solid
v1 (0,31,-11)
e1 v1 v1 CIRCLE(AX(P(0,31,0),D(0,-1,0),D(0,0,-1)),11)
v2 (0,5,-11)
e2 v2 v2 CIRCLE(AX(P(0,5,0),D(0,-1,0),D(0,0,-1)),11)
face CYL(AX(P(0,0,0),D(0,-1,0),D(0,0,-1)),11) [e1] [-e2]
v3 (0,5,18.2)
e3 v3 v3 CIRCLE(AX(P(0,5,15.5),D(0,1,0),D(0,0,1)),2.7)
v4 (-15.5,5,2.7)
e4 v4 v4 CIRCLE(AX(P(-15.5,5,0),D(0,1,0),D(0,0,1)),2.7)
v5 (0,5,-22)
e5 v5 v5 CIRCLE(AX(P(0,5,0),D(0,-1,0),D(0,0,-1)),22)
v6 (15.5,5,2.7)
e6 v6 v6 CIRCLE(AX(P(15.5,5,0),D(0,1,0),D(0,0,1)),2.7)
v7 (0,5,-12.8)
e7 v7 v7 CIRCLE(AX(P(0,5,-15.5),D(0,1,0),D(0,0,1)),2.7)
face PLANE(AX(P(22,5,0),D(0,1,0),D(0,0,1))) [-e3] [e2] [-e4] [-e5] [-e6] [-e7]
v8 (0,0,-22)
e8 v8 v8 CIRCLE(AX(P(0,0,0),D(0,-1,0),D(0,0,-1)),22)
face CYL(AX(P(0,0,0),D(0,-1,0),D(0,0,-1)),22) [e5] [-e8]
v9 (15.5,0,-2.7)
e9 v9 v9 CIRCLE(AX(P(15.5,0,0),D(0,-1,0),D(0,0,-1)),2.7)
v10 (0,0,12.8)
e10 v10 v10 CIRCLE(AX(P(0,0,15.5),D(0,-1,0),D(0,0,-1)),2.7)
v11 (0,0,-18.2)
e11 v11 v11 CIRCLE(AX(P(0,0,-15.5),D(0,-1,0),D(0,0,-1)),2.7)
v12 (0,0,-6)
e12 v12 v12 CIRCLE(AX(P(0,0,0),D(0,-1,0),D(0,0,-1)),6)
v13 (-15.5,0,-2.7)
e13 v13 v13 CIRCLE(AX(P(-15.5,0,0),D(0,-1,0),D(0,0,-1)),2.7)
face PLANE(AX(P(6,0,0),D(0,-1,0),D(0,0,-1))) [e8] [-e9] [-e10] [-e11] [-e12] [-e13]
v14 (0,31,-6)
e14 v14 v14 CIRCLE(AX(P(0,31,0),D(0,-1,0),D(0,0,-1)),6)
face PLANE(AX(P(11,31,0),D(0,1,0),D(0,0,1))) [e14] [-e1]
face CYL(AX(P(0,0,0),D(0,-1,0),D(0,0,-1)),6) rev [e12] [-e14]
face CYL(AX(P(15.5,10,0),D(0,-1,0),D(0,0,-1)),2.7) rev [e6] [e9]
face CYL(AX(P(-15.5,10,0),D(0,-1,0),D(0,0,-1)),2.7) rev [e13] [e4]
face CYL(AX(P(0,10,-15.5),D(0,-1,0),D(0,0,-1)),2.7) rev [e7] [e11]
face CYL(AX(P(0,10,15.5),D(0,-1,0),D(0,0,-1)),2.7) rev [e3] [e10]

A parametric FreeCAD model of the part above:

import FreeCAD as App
import Part
import Sketcher

doc = App.newDocument("Part")
params = doc.addObject("Spreadsheet::Sheet", "Params")
for row, (alias, value) in enumerate([
    ("sketch1_width", "16 mm"),
    ("sketch1_width2", "11 mm"),
    ("sketch1_height", "26 mm"),
    ("revolution_angle", "360 deg"),
    ("sketch2_diameter", "5.4 mm"),
    ("pocket1_length", "10 mm"),
], start=1):
    params.set(f"A{row}", alias)
    params.set(f"B{row}", "=" + value)
    params.setAlias(f"B{row}", alias)

body = doc.addObject("PartDesign::Body", "Body")

sketch1 = body.newObject("Sketcher::SketchObject", "Sketch")
sketch1.AttachmentSupport = (doc.getObject("XY_Plane"), [""])
sketch1.MapMode = "FlatFace"
sketch1.addGeometry(Part.LineSegment(App.Vector(6, 0, 0), App.Vector(22, 0, 0)), False)
sketch1.addGeometry(Part.LineSegment(App.Vector(22, 0, 0), App.Vector(22, 5, 0)), False)
sketch1.addGeometry(Part.LineSegment(App.Vector(22, 5, 0), App.Vector(11, 5, 0)), False)
sketch1.addGeometry(Part.LineSegment(App.Vector(11, 5, 0), App.Vector(11, 31, 0)), False)
sketch1.addGeometry(Part.LineSegment(App.Vector(11, 31, 0), App.Vector(6, 31, 0)), False)
sketch1.addGeometry(Part.LineSegment(App.Vector(6, 31, 0), App.Vector(6, 0, 0)), False)
sketch1.addConstraint(Sketcher.Constraint("Coincident", 0, 2, 1, 1))
sketch1.addConstraint(Sketcher.Constraint("Coincident", 1, 2, 2, 1))
sketch1.addConstraint(Sketcher.Constraint("Coincident", 2, 2, 3, 1))
sketch1.addConstraint(Sketcher.Constraint("Coincident", 3, 2, 4, 1))
sketch1.addConstraint(Sketcher.Constraint("Coincident", 4, 2, 5, 1))
sketch1.addConstraint(Sketcher.Constraint("Coincident", 5, 2, 0, 1))
sketch1.addConstraint(Sketcher.Constraint("Horizontal", 0))
sketch1.addConstraint(Sketcher.Constraint("Vertical", 1))
sketch1.addConstraint(Sketcher.Constraint("Horizontal", 2))
sketch1.addConstraint(Sketcher.Constraint("Vertical", 3))
sketch1.addConstraint(Sketcher.Constraint("Horizontal", 4))
sketch1.addConstraint(Sketcher.Constraint("Vertical", 5))
sketch1.addConstraint(Sketcher.Constraint("PointOnObject", 0, 2, -1))
sketch1.addConstraint(Sketcher.Constraint("Equal", 4, 1))
sketch1.addConstraint(Sketcher.Constraint("DistanceX", 0, 1, 0, 2, 16.0))
sketch1.addConstraint(Sketcher.Constraint("DistanceX", 2, 2, 2, 1, 11.0))
sketch1.addConstraint(Sketcher.Constraint("DistanceY", 3, 1, 3, 2, 26.0))
sketch1.addConstraint(Sketcher.Constraint("DistanceX", -1, 1, 0, 2, 22.0))
sketch1.setExpression("Constraints[14]", "Params.sketch1_width")
sketch1.setExpression("Constraints[15]", "Params.sketch1_width2")
sketch1.setExpression("Constraints[16]", "Params.sketch1_height")
revolution = body.newObject("PartDesign::Revolution", "Revolution")
revolution.Profile = sketch1
revolution.ReferenceAxis = (sketch1, ["V_Axis"])
revolution.setExpression("Angle", "Params.revolution_angle")

sketch2 = body.newObject("Sketcher::SketchObject", "Sketch001")
sketch2.AttachmentSupport = (doc.getObject("XZ_Plane"), [""])
sketch2.MapMode = "FlatFace"
sketch2.addGeometry(Part.Circle(App.Vector(0, 15.5, 0), App.Vector(0, 0, 1), 2.7), False)
sketch2.addGeometry(Part.Circle(App.Vector(15.5, 0, 0), App.Vector(0, 0, 1), 2.7), False)
sketch2.addGeometry(Part.Circle(App.Vector(0, -15.5, 0), App.Vector(0, 0, 1), 2.7), False)
sketch2.addGeometry(Part.Circle(App.Vector(-15.5, 0, 0), App.Vector(0, 0, 1), 2.7), False)
sketch2.addConstraint(Sketcher.Constraint("Equal", 0, 1))
sketch2.addConstraint(Sketcher.Constraint("Equal", 1, 2))
sketch2.addConstraint(Sketcher.Constraint("Equal", 2, 3))
sketch2.addConstraint(Sketcher.Constraint("Symmetric", 0, 3, 2, 3, -1, 1))
sketch2.addConstraint(Sketcher.Constraint("Symmetric", 1, 3, 3, 3, -1, 1))
sketch2.addConstraint(Sketcher.Constraint("PointOnObject", 0, 3, -2))
sketch2.addConstraint(Sketcher.Constraint("PointOnObject", 1, 3, -1))
sketch2.addConstraint(Sketcher.Constraint("Diameter", 0, 5.4))
sketch2.addConstraint(Sketcher.Constraint("DistanceY", 2, 3, 0, 3, 31.0))
sketch2.addConstraint(Sketcher.Constraint("DistanceX", 3, 3, 1, 3, 31.0))
sketch2.setExpression("Constraints[7]", "Params.sketch2_diameter")
pocket1 = body.newObject("PartDesign::Pocket", "Pocket")
pocket1.Profile = sketch2
pocket1.setExpression("Length", "Params.pocket1_length")

doc.recompute()
